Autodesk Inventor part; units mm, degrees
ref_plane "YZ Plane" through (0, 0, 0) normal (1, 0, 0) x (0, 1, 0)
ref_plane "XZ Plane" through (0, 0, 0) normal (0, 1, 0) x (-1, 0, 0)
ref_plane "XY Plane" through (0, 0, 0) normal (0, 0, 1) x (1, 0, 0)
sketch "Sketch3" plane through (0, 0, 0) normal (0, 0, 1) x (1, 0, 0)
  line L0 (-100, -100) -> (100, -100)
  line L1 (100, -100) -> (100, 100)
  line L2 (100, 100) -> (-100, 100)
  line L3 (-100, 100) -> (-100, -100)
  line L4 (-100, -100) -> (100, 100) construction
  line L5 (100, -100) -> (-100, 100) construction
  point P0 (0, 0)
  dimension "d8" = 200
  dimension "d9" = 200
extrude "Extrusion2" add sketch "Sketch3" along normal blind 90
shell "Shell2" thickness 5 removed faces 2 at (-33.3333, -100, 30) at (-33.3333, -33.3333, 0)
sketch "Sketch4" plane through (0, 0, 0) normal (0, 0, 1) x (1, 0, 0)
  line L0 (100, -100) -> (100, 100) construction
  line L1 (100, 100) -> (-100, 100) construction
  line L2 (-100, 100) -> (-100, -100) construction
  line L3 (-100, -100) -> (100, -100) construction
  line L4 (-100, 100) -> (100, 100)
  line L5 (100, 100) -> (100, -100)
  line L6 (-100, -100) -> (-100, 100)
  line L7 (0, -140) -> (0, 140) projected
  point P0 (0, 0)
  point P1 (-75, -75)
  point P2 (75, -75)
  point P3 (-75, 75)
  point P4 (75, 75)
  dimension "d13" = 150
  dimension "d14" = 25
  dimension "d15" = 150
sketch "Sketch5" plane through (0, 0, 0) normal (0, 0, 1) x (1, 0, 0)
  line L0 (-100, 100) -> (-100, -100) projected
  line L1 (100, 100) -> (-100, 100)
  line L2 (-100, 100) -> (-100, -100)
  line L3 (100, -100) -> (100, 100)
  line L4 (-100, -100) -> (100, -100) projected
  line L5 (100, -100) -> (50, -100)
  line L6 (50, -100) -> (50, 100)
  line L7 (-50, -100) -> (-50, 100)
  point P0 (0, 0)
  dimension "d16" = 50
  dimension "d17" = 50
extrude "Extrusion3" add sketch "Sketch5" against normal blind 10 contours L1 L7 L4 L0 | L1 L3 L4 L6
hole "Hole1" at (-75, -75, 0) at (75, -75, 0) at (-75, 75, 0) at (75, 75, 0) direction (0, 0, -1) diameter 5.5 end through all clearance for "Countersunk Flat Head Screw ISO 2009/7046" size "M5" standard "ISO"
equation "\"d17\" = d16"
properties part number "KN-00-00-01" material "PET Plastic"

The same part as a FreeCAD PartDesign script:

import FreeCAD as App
import Part
import Sketcher
Q = App.Units.Quantity


def faces_at(feature, points):
    """Names of the faces that lie closest to the given points."""
    faces = feature.Shape.Faces
    near = lambda p: min(range(len(faces)), key=lambda i: faces[i].distToShape(Part.Vertex(*p))[0])
    return sorted({f"Face{near(p) + 1}" for p in points})


def add_polygon(sketch, points):
    """Adds a closed chain of lines whose ends are joined by coincident constraints."""
    first, n = sketch.GeometryCount, len(points)
    for a, b in zip(points, points[1:] + points[:1]):
        sketch.addGeometry(Part.LineSegment(App.Vector(*a, 0), App.Vector(*b, 0)), False)
    for i in range(n):
        sketch.addConstraint(Sketcher.Constraint("Coincident", first + i, 2, first + (i + 1) % n, 1))

doc = App.newDocument("Part")
body = doc.addObject("PartDesign::Body", "Body")

# Sketch on XY plane
sketch1 = body.newObject("Sketcher::SketchObject", "Sketch")
sketch1.AttachmentSupport = (doc.getObject("XY_Plane"), [""])
sketch1.MapMode = "FlatFace"
add_polygon(sketch1, [(-100, 100), (-100, -100), (100, -100), (100, 100)])  # lines 0-3
sketch1.addConstraint(Sketcher.Constraint("Vertical", 0))
sketch1.addConstraint(Sketcher.Constraint("Horizontal", 1))
sketch1.addConstraint(Sketcher.Constraint("Vertical", 2))
sketch1.addConstraint(Sketcher.Constraint("Horizontal", 3))
sketch1.addConstraint(Sketcher.Constraint("Symmetric", 0, 2, 2, 2, -1, 1))
sketch1.addConstraint(Sketcher.Constraint("Equal", 3, 0))
sketch1.addConstraint(Sketcher.Constraint("DistanceX", 1, 1, 1, 2, Q("200 mm")))
pad1 = body.newObject("PartDesign::Pad", "Pad")
pad1.Profile = sketch1
pad1.Length = 90
doc.recompute()

thickness = body.newObject("PartDesign::Thickness", "Thickness")
thickness.Base = (pad1, faces_at(pad1, [(-33.333, -100, 30), (-33.333, -33.333, 0)]))
thickness.Value = 5
thickness.Reversed = True
thickness.Join = "Intersection"

# Sketch on XY plane
sketch2 = body.newObject("Sketcher::SketchObject", "Sketch001")
sketch2.AttachmentSupport = (doc.getObject("XY_Plane"), [""])
sketch2.MapMode = "FlatFace"
add_polygon(sketch2, [(-50, 100), (-100, 100), (-100, -100), (-50, -100)])  # lines 0-3
add_polygon(sketch2, [(100, 100), (50, 100), (50, -100), (100, -100)])  # lines 4-7
sketch2.addConstraint(Sketcher.Constraint("Horizontal", 0))
sketch2.addConstraint(Sketcher.Constraint("Vertical", 1))
sketch2.addConstraint(Sketcher.Constraint("Horizontal", 2))
sketch2.addConstraint(Sketcher.Constraint("Vertical", 3))
sketch2.addConstraint(Sketcher.Constraint("Horizontal", 4))
sketch2.addConstraint(Sketcher.Constraint("Vertical", 5))
sketch2.addConstraint(Sketcher.Constraint("Horizontal", 6))
sketch2.addConstraint(Sketcher.Constraint("Vertical", 7))
sketch2.addConstraint(Sketcher.Constraint("Symmetric", 2, 2, 4, 2, -1, 1))
sketch2.addConstraint(Sketcher.Constraint("Symmetric", 0, 2, 6, 2, -1, 1))
sketch2.addConstraint(Sketcher.Constraint("Horizontal", 3, 2, 4, 2))
sketch2.addConstraint(Sketcher.Constraint("DistanceX", 0, 2, 0, 1, Q("50 mm")))
sketch2.addConstraint(Sketcher.Constraint("DistanceX", 2, 2, -1, 1, Q("50 mm")))
sketch2.addConstraint(Sketcher.Constraint("DistanceY", 1, 2, 1, 1, Q("200 mm")))
pad2 = body.newObject("PartDesign::Pad", "Pad001")
pad2.Profile = sketch2
pad2.Length = 10
pad2.Reversed = True

# Sketch on XY plane
sketch3 = body.newObject("Sketcher::SketchObject", "Sketch002")
sketch3.AttachmentSupport = (doc.getObject("XY_Plane"), [""])
sketch3.MapMode = "FlatFace"
sketch3.addGeometry(Part.Circle(App.Vector(-75, -75, 0), App.Vector(0, 0, 1), 2.75), False)
sketch3.addGeometry(Part.Circle(App.Vector(75, -75, 0), App.Vector(0, 0, 1), 2.75), False)
sketch3.addGeometry(Part.Circle(App.Vector(-75, 75, 0), App.Vector(0, 0, 1), 2.75), False)
sketch3.addGeometry(Part.Circle(App.Vector(75, 75, 0), App.Vector(0, 0, 1), 2.75), False)
sketch3.addConstraint(Sketcher.Constraint("Equal", 0, 1))
sketch3.addConstraint(Sketcher.Constraint("Equal", 1, 2))
sketch3.addConstraint(Sketcher.Constraint("Equal", 2, 3))
sketch3.addConstraint(Sketcher.Constraint("Symmetric", 1, 3, 2, 3, -1, 1))
sketch3.addConstraint(Sketcher.Constraint("Symmetric", 0, 3, 3, 3, -1, 1))
sketch3.addConstraint(Sketcher.Constraint("Symmetric", 0, 3, 1, 3, -2))
sketch3.addConstraint(Sketcher.Constraint("Diameter", 0, Q("5.5 mm")))
sketch3.addConstraint(Sketcher.Constraint("DistanceX", 0, 3, -1, 1, Q("75 mm")))
sketch3.addConstraint(Sketcher.Constraint("DistanceY", 0, 3, -1, 1, Q("75 mm")))
doc.recompute()
hole = body.newObject("PartDesign::Hole", "Hole")
hole.Profile = sketch3
hole.ThreadType = "None"
hole.Diameter = 5.5
hole.DepthType = "ThroughAll"

doc.recompute()
